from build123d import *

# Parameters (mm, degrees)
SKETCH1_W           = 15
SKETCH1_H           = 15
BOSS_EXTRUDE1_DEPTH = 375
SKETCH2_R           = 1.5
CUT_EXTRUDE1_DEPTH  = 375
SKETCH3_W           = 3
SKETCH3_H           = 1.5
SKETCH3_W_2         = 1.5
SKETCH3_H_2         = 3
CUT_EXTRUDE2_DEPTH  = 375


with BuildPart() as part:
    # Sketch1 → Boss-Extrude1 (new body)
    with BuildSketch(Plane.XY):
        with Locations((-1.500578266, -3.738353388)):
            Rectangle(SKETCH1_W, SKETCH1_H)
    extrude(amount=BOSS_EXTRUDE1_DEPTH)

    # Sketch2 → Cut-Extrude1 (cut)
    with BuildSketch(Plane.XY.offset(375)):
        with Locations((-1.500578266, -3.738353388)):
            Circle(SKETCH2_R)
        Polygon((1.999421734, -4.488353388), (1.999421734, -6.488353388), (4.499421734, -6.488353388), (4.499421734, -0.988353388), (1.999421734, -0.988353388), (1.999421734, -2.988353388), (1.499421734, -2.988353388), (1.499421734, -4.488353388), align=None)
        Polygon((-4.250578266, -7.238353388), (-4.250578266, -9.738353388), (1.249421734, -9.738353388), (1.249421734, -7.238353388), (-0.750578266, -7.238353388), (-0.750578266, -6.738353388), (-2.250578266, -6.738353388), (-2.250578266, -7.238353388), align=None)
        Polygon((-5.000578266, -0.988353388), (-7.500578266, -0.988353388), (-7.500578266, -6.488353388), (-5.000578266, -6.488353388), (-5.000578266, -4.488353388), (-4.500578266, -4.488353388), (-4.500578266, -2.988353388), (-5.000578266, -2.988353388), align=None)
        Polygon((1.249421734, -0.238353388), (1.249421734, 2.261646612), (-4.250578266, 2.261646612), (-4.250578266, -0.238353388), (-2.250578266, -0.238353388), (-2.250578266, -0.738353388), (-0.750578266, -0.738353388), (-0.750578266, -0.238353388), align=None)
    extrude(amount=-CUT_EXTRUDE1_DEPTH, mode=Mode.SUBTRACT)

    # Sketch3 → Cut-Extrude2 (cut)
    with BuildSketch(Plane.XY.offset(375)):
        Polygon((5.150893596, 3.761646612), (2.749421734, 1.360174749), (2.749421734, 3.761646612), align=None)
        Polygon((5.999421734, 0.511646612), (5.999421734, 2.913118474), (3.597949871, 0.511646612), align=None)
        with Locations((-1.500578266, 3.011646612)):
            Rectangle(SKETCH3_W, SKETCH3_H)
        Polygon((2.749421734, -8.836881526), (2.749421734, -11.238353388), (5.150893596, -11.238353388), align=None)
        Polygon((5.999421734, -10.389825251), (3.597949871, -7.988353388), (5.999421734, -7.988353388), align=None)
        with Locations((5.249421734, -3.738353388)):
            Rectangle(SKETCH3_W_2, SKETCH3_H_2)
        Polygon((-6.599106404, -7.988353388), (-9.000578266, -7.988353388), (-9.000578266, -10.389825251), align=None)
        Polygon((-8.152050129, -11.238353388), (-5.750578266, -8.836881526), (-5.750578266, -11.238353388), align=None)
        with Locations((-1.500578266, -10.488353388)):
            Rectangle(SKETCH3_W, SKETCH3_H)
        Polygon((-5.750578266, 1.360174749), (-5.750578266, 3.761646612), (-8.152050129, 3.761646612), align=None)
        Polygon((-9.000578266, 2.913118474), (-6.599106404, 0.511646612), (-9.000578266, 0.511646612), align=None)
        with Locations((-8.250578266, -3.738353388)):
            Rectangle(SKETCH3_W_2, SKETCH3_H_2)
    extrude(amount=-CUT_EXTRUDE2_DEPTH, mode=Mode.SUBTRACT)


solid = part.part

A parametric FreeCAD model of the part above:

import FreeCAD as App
import Part
import Sketcher

V = App.Vector


def add_polygon(sketch, points):
    """Adds a closed chain of lines whose ends are joined by coincident constraints."""
    first, n = sketch.GeometryCount, len(points)
    for a, b in zip(points, points[1:] + points[:1]):
        sketch.addGeometry(Part.LineSegment(App.Vector(*a, 0), App.Vector(*b, 0)), False)
    for i in range(n):
        sketch.addConstraint(Sketcher.Constraint("Coincident", first + i, 2, first + (i + 1) % n, 1))

doc = App.newDocument("Part")
params = doc.addObject("Spreadsheet::Sheet", "Params")
for row, (alias, value) in enumerate([
    ("sketch1_width", "15 mm"),
    ("pad1_length", "375 mm"),
    ("sketch2_diameter", "3 mm"),
    ("sketch2_width", "2 mm"),
    ("sketch2_width2", "2.5 mm"),
    ("sketch2_width3", "0.5 mm"),
    ("sketch2_width4", "5.5 mm"),
    ("pocket1_length", "375 mm"),
    ("sketch3_width", "3 mm"),
    ("sketch3_width2", "1.5 mm"),
    ("pocket2_length", "375 mm"),
], start=1):
    params.set(f"A{row}", alias)
    params.set(f"B{row}", "=" + value)
    params.setAlias(f"B{row}", alias)

body = doc.addObject("PartDesign::Body", "Body")

sketch1 = body.newObject("Sketcher::SketchObject", "Sketch")
sketch1.AttachmentSupport = (doc.getObject("XY_Plane"), [""])
sketch1.MapMode = "FlatFace"
add_polygon(sketch1, [(-9, 4), (-9, -11), (6, -11), (6, 4)])
sketch1.addConstraint([
    Sketcher.Constraint("Vertical", 0),
    Sketcher.Constraint("Horizontal", 1),
    Sketcher.Constraint("Vertical", 2),
    Sketcher.Constraint("Horizontal", 3),
    Sketcher.Constraint("Equal", 3, 0),
    Sketcher.Constraint("DistanceX", 1, 1, 1, 2, 15.0),
    Sketcher.Constraint("DistanceX", 0, 2, -1, 1, 9.000578),
    Sketcher.Constraint("DistanceY", 0, 2, -1, 1, 11.238353),
])
sketch1.setExpression("Constraints[9]", "Params.sketch1_width")
pad1 = body.newObject("PartDesign::Pad", "Pad")
pad1.Profile = sketch1
pad1.setExpression("Length", "Params.pad1_length")

sketch2 = body.newObject("Sketcher::SketchObject", "Sketch001")
sketch2.AttachmentSupport = (doc.getObject("XY_Plane"), [""])
sketch2.MapMode = "FlatFace"
sketch2.AttachmentOffset = App.Placement(V(0, 0, 375), App.Rotation())
sketch2.addGeometry(Part.Circle(V(-1.5, -3.7, 0), V(0, 0, 1), 1.5), False)
add_polygon(sketch2, [(2, -4.5), (2, -6.5), (4.5, -6.5), (4.5, -1), (2, -1), (2, -3), (1.5, -3), (1.5, -4.5)])
add_polygon(sketch2, [(-4.3, -7.2), (-4.3, -9.7), (1.2, -9.7), (1.2, -7.2), (-0.8, -7.2), (-0.8, -6.7), (-2.3, -6.7), (-2.3, -7.2)])
add_polygon(sketch2, [(-5, -1), (-7.5, -1), (-7.5, -6.5), (-5, -6.5), (-5, -4.5), (-4.5, -4.5), (-4.5, -3), (-5, -3)])
add_polygon(sketch2, [(1.2, -0.2), (1.2, 2.3), (-4.3, 2.3), (-4.3, -0.2), (-2.3, -0.2), (-2.3, -0.7), (-0.8, -0.7), (-0.8, -0.2)])
sketch2.addConstraint([
    Sketcher.Constraint("Vertical", 1),
    Sketcher.Constraint("Horizontal", 2),
    Sketcher.Constraint("Vertical", 3),
    Sketcher.Constraint("Horizontal", 4),
    Sketcher.Constraint("Vertical", 5),
    Sketcher.Constraint("Horizontal", 6),
    Sketcher.Constraint("Vertical", 7),
    Sketcher.Constraint("Horizontal", 8),
    Sketcher.Constraint("Vertical", 9),
    Sketcher.Constraint("Horizontal", 10),
    Sketcher.Constraint("Vertical", 11),
    Sketcher.Constraint("Horizontal", 12),
    Sketcher.Constraint("Vertical", 13),
    Sketcher.Constraint("Horizontal", 14),
    Sketcher.Constraint("Vertical", 15),
    Sketcher.Constraint("Horizontal", 16),
    Sketcher.Constraint("Horizontal", 17),
    Sketcher.Constraint("Vertical", 18),
    Sketcher.Constraint("Horizontal", 19),
    Sketcher.Constraint("Vertical", 20),
    Sketcher.Constraint("Horizontal", 21),
    Sketcher.Constraint("Vertical", 22),
    Sketcher.Constraint("Horizontal", 23),
    Sketcher.Constraint("Vertical", 24),
    Sketcher.Constraint("Vertical", 25),
    Sketcher.Constraint("Horizontal", 26),
    Sketcher.Constraint("Vertical", 27),
    Sketcher.Constraint("Horizontal", 28),
    Sketcher.Constraint("Vertical", 29),
    Sketcher.Constraint("Horizontal", 30),
    Sketcher.Constraint("Vertical", 31),
    Sketcher.Constraint("Horizontal", 32),
    Sketcher.Constraint("Horizontal", 12, 2, 15, 2),
    Sketcher.Constraint("Horizontal", 4, 2, 17, 2),
    Sketcher.Constraint("Horizontal", 2, 2, 18, 2),
    Sketcher.Constraint("Horizontal", 8, 2, 20, 2),
    Sketcher.Constraint("Horizontal", 6, 2, 22, 2),
    Sketcher.Constraint("Horizontal", 28, 2, 31, 2),
    Sketcher.Constraint("Vertical", 1, 2, 4, 2),
    Sketcher.Constraint("Vertical", 20, 2, 23, 2),
    Sketcher.Constraint("Vertical", 11, 2, 25, 2),
    Sketcher.Constraint("Vertical", 16, 2, 26, 2),
    Sketcher.Constraint("Vertical", 15, 2, 28, 2),
    Sketcher.Constraint("Vertical", 13, 2, 30, 2),
    Sketcher.Constraint("Equal", 12, 16),
    Sketcher.Constraint("Equal", 4, 17),
    Sketcher.Constraint("Equal", 8, 21),
    Sketcher.Constraint("Equal", 32, 1),
    Sketcher.Constraint("Equal", 26, 3),
    Sketcher.Constraint("Equal", 1, 5),
    Sketcher.Constraint("Equal", 19, 9),
    Sketcher.Constraint("Equal", 23, 13),
    Sketcher.Constraint("Equal", 11, 25),
    Sketcher.Constraint("Equal", 15, 29),
    Sketcher.Constraint("Diameter", 0, 3.0),
    Sketcher.Constraint("DistanceX", 12, 2, 12, 1, 2.0),
    Sketcher.Constraint("DistanceX", 2, 1, 2, 2, 2.5),
    Sketcher.Constraint("DistanceX", 6, 2, 6, 1, 0.5),
    Sketcher.Constraint("DistanceX", 10, 1, 10, 2, 5.5),
    Sketcher.Constraint("DistanceX", 0, 3, 2, 2, 6.0),
    Sketcher.Constraint("DistanceY", 9, 2, 0, 3, 6.0),
    Sketcher.Constraint("DistanceX", 17, 2, 0, 3, 6.0),
    Sketcher.Constraint("DistanceY", 0, 3, 25, 2, 6.0),
    Sketcher.Constraint("DistanceY", 1, 2, 0, 3, 2.75),
    Sketcher.Constraint("DistanceX", 9, 2, 0, 3, 2.75),
    Sketcher.Constraint("DistanceX", 0, 3, -1, 1, 1.500578),
    Sketcher.Constraint("DistanceY", 0, 3, -1, 1, 3.738353),
])
sketch2.setExpression("Constraints[86]", "Params.sketch2_diameter")
sketch2.setExpression("Constraints[87]", "Params.sketch2_width")
sketch2.setExpression("Constraints[88]", "Params.sketch2_width2")
sketch2.setExpression("Constraints[89]", "Params.sketch2_width3")
sketch2.setExpression("Constraints[90]", "Params.sketch2_width4")
pocket1 = body.newObject("PartDesign::Pocket", "Pocket")
pocket1.Profile = sketch2
pocket1.setExpression("Length", "Params.pocket1_length")

sketch3 = body.newObject("Sketcher::SketchObject", "Sketch002")
sketch3.AttachmentSupport = (doc.getObject("XY_Plane"), [""])
sketch3.MapMode = "FlatFace"
sketch3.AttachmentOffset = App.Placement(V(0, 0, 375), App.Rotation())
add_polygon(sketch3, [(2.7, 1.4), (5.2, 3.8), (2.7, 3.8)])
add_polygon(sketch3, [(6, 0.5), (6, 2.9), (3.6, 0.5)])
add_polygon(sketch3, [(-3, 3.8), (-3, 2.3), (0, 2.3), (0, 3.8)])
add_polygon(sketch3, [(2.7, -8.8), (2.7, -11.2), (5.2, -11.2)])
add_polygon(sketch3, [(3.6, -8), (6, -10.4), (6, -8)])
add_polygon(sketch3, [(4.5, -2.2), (4.5, -5.2), (6, -5.2), (6, -2.2)])
add_polygon(sketch3, [(-6.6, -8), (-9, -8), (-9, -10.4)])
add_polygon(sketch3, [(-5.8, -8.8), (-8.2, -11.2), (-5.8, -11.2)])
add_polygon(sketch3, [(-3, -9.7), (-3, -11.2), (0, -11.2), (0, -9.7)])
add_polygon(sketch3, [(-5.8, 1.4), (-5.8, 3.8), (-8.2, 3.8)])
add_polygon(sketch3, [(-6.6, 0.5), (-9, 2.9), (-9, 0.5)])
add_polygon(sketch3, [(-9, -2.2), (-9, -5.2), (-7.5, -5.2), (-7.5, -2.2)])
sketch3.addConstraint([
    Sketcher.Constraint("Horizontal", 1),
    Sketcher.Constraint("Vertical", 2),
    Sketcher.Constraint("Vertical", 3),
    Sketcher.Constraint("Horizontal", 5),
    Sketcher.Constraint("Vertical", 6),
    Sketcher.Constraint("Horizontal", 7),
    Sketcher.Constraint("Vertical", 8),
    Sketcher.Constraint("Horizontal", 9),
    Sketcher.Constraint("Vertical", 10),
    Sketcher.Constraint("Horizontal", 11),
    Sketcher.Constraint("Vertical", 14),
    Sketcher.Constraint("Horizontal", 15),
    Sketcher.Constraint("Vertical", 16),
    Sketcher.Constraint("Horizontal", 17),
    Sketcher.Constraint("Vertical", 18),
    Sketcher.Constraint("Horizontal", 19),
    Sketcher.Constraint("Horizontal", 20),
    Sketcher.Constraint("Vertical", 21),
    Sketcher.Constraint("Horizontal", 24),
    Sketcher.Constraint("Vertical", 25),
    Sketcher.Constraint("Vertical", 26),
    Sketcher.Constraint("Horizontal", 27),
    Sketcher.Constraint("Vertical", 28),
    Sketcher.Constraint("Horizontal", 29),
    Sketcher.Constraint("Vertical", 30),
    Sketcher.Constraint("Horizontal", 31),
    Sketcher.Constraint("Vertical", 34),
    Sketcher.Constraint("Horizontal", 35),
    Sketcher.Constraint("Vertical", 36),
    Sketcher.Constraint("Horizontal", 37),
    Sketcher.Constraint("Vertical", 38),
    Sketcher.Constraint("Horizontal", 39),
    Sketcher.Constraint("Parallel", 0, 4),
    Sketcher.Constraint("Perpendicular", 4, 12),
    Sketcher.Constraint("Parallel", 12, 13),
    Sketcher.Constraint("Perpendicular", 13, 22),
    Sketcher.Constraint("Parallel", 22, 23),
    Sketcher.Constraint("Perpendicular", 23, 32),
    Sketcher.Constraint("Parallel", 32, 33),
    Sketcher.Constraint("Horizontal", 1, 2, 8, 2),
    Sketcher.Constraint("Horizontal", 15, 2, 20, 2),
    Sketcher.Constraint("Horizontal", 13, 2, 21, 2),
    Sketcher.Constraint("Horizontal", 11, 2, 23, 2),
    Sketcher.Constraint("Horizontal", 12, 2, 25, 2),
    Sketcher.Constraint("Horizontal", 24, 2, 26, 2),
    Sketcher.Constraint("Horizontal", 9, 2, 30, 2),
    Sketcher.Constraint("Horizontal", 2, 2, 32, 2),
    Sketcher.Constraint("Horizontal", 3, 2, 33, 2),
    Sketcher.Constraint("Horizontal", 5, 2, 34, 2),
    Sketcher.Constraint("Horizontal", 17, 2, 36, 2),
    Sketcher.Constraint("Horizontal", 19, 2, 38, 2),
    Sketcher.Constraint("Vertical", 2, 2, 10, 2),
    Sketcher.Constraint("Vertical", 0, 2, 11, 2),
    Sketcher.Constraint("Vertical", 5, 2, 13, 2),
    Sketcher.Constraint("Vertical", 4, 2, 15, 2),
    Sketcher.Constraint("Vertical", 14, 2, 17, 2),
    Sketcher.Constraint("Vertical", 9, 2, 26, 2),
    Sketcher.Constraint("Vertical", 8, 2, 27, 2),
    Sketcher.Constraint("Vertical", 25, 2, 30, 2),
    Sketcher.Constraint("Vertical", 23, 2, 31, 2),
    Sketcher.Constraint("Vertical", 21, 2, 33, 2),
    Sketcher.Constraint("Vertical", 34, 2, 36, 2),
    Sketcher.Constraint("Equal", 1, 5),
    Sketcher.Constraint("Equal", 19, 37),
    Sketcher.Constraint("Equal", 39, 6),
    Sketcher.Constraint("Equal", 29, 16),
    Sketcher.Constraint("Equal", 8, 26),
    Sketcher.Constraint("DistanceX", 7, 1, 7, 2, 3.0),
    Sketcher.Constraint("DistanceX", 17, 1, 17, 2, 1.5),
    Sketcher.Constraint("DistanceX", 6, 2, 3, 2, 9.0),
    Sketcher.Constraint("DistanceX", 20, 2, 6, 2, 6.0),
    Sketcher.Constraint("DistanceY", 10, 2, 7, 2, 13.5),
    Sketcher.Constraint("DistanceY", 14, 2, 5, 2, 8.5),
    Sketcher.Constraint("DistanceX", 24, 2, 10, 2, 8.5),
    Sketcher.Constraint("DistanceX", 1, 2, 3, 2, 3.25),
    Sketcher.Constraint("DistanceY", 4, 2, 1, 2, 3.25),
    Sketcher.Constraint("DistanceY", 15, 2, 16, 2, 2.75),
    Sketcher.Constraint("DistanceX", 1, 2, 1, 1, 2.401472),
    Sketcher.Constraint("DistanceX", -1, 1, 1, 2, 2.749422),
    Sketcher.Constraint("DistanceY", -1, 1, 3, 2, 2.913118),
])
sketch3.setExpression("Constraints[107]", "Params.sketch3_width")
sketch3.setExpression("Constraints[108]", "Params.sketch3_width2")
pocket2 = body.newObject("PartDesign::Pocket", "Pocket001")
pocket2.Profile = sketch3
pocket2.setExpression("Length", "Params.pocket2_length")

doc.recompute()
